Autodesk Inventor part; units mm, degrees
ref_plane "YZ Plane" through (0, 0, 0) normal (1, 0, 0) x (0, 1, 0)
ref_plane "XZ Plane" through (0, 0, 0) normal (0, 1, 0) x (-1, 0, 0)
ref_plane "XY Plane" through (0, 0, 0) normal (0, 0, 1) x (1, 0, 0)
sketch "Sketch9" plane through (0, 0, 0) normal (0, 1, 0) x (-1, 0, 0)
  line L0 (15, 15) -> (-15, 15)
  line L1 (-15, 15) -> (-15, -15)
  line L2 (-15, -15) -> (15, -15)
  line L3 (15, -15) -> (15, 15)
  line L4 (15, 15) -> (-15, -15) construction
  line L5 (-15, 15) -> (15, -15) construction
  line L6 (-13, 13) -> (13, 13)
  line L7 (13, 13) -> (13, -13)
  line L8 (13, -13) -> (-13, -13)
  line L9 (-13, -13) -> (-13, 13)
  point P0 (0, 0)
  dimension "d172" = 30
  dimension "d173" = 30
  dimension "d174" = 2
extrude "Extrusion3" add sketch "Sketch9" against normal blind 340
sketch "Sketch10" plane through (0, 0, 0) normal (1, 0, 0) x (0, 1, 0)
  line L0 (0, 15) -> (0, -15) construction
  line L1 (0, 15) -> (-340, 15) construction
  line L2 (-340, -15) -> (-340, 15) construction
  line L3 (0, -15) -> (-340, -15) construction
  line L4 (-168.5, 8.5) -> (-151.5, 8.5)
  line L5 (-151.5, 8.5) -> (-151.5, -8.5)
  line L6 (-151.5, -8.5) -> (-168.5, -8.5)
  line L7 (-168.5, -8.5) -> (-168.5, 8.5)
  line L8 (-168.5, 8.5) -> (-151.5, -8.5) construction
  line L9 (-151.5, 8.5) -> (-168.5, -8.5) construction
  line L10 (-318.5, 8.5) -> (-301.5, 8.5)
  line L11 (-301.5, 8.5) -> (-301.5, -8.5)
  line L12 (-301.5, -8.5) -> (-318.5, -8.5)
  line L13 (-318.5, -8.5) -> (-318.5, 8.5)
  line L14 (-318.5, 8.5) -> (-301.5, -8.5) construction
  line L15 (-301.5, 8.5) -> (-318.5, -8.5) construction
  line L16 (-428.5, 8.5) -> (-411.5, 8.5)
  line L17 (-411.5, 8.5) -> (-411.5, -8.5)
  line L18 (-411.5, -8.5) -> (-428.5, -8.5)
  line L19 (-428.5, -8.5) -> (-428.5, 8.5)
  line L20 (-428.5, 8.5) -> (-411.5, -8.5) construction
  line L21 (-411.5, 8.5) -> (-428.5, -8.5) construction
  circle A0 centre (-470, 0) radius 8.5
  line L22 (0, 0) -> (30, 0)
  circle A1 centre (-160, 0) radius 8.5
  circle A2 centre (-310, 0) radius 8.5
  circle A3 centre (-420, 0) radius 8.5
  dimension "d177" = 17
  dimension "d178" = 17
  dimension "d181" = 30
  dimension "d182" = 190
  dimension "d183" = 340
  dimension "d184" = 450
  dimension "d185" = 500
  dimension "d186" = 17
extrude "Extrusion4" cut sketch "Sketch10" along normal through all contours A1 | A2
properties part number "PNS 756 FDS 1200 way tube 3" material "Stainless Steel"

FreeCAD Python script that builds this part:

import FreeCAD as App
import Part
import Sketcher
from FreeCAD import Vector
Q = App.Units.Quantity


def add_polygon(sketch, points):
    """Adds a closed chain of lines whose ends are joined by coincident constraints."""
    first, n = sketch.GeometryCount, len(points)
    for a, b in zip(points, points[1:] + points[:1]):
        sketch.addGeometry(Part.LineSegment(App.Vector(*a, 0), App.Vector(*b, 0)), False)
    for i in range(n):
        sketch.addConstraint(Sketcher.Constraint("Coincident", first + i, 2, first + (i + 1) % n, 1))

doc = App.newDocument("Part")
body = doc.addObject("PartDesign::Body", "Body")

# Sketch on XZ plane
sketch1 = body.newObject("Sketcher::SketchObject", "Sketch")
sketch1.AttachmentSupport = (doc.getObject("XZ_Plane"), [""])
sketch1.MapMode = "FlatFace"
add_polygon(sketch1, [(-15, -15), (-15, 15), (15, 15), (15, -15)])  # lines 0-3
add_polygon(sketch1, [(13, -13), (13, 13), (-13, 13), (-13, -13)])  # lines 4-7
sketch1.addConstraint([
    Sketcher.Constraint("Vertical", 0),
    Sketcher.Constraint("Horizontal", 1),
    Sketcher.Constraint("Vertical", 2),
    Sketcher.Constraint("Horizontal", 3),
    Sketcher.Constraint("Vertical", 4),
    Sketcher.Constraint("Horizontal", 5),
    Sketcher.Constraint("Vertical", 6),
    Sketcher.Constraint("Horizontal", 7),
    Sketcher.Constraint("Symmetric", 0, 2, 2, 2, -1, 1),
    Sketcher.Constraint("Symmetric", 4, 2, 6, 2, -1, 1),
    Sketcher.Constraint("Equal", 3, 0),
    Sketcher.Constraint("Equal", 7, 4),
    Sketcher.Constraint("DistanceX", 1, 1, 1, 2, Q("30 mm")),
    Sketcher.Constraint("DistanceX", 4, 2, 1, 2, Q("2 mm")),
])
pad1 = body.newObject("PartDesign::Pad", "Pad")
pad1.Profile = sketch1
pad1.Length = 340

# Sketch on YZ plane
sketch2 = body.newObject("Sketcher::SketchObject", "Sketch001")
sketch2.AttachmentSupport = (doc.getObject("YZ_Plane"), [""])
sketch2.MapMode = "FlatFace"
sketch2.addGeometry([
    Part.Circle(Vector(-160, 0, 0), Vector(0, 0, 1), 8),
    Part.Circle(Vector(-310, 0, 0), Vector(0, 0, 1), 8),
], False)
sketch2.addConstraint([
    Sketcher.Constraint("Equal", 0, 1),
    Sketcher.Constraint("PointOnObject", 0, 3, -1),
    Sketcher.Constraint("PointOnObject", 1, 3, -1),
    Sketcher.Constraint("Diameter", 0, Q("17 mm")),
    Sketcher.Constraint("DistanceX", 0, 3, -1, 1, Q("160 mm")),
    Sketcher.Constraint("DistanceX", 1, 3, -1, 1, Q("310 mm")),
])
pocket1 = body.newObject("PartDesign::Pocket", "Pocket")
pocket1.Profile = sketch2
pocket1.Type = "ThroughAll"
pocket1.Reversed = True

doc.recompute()
